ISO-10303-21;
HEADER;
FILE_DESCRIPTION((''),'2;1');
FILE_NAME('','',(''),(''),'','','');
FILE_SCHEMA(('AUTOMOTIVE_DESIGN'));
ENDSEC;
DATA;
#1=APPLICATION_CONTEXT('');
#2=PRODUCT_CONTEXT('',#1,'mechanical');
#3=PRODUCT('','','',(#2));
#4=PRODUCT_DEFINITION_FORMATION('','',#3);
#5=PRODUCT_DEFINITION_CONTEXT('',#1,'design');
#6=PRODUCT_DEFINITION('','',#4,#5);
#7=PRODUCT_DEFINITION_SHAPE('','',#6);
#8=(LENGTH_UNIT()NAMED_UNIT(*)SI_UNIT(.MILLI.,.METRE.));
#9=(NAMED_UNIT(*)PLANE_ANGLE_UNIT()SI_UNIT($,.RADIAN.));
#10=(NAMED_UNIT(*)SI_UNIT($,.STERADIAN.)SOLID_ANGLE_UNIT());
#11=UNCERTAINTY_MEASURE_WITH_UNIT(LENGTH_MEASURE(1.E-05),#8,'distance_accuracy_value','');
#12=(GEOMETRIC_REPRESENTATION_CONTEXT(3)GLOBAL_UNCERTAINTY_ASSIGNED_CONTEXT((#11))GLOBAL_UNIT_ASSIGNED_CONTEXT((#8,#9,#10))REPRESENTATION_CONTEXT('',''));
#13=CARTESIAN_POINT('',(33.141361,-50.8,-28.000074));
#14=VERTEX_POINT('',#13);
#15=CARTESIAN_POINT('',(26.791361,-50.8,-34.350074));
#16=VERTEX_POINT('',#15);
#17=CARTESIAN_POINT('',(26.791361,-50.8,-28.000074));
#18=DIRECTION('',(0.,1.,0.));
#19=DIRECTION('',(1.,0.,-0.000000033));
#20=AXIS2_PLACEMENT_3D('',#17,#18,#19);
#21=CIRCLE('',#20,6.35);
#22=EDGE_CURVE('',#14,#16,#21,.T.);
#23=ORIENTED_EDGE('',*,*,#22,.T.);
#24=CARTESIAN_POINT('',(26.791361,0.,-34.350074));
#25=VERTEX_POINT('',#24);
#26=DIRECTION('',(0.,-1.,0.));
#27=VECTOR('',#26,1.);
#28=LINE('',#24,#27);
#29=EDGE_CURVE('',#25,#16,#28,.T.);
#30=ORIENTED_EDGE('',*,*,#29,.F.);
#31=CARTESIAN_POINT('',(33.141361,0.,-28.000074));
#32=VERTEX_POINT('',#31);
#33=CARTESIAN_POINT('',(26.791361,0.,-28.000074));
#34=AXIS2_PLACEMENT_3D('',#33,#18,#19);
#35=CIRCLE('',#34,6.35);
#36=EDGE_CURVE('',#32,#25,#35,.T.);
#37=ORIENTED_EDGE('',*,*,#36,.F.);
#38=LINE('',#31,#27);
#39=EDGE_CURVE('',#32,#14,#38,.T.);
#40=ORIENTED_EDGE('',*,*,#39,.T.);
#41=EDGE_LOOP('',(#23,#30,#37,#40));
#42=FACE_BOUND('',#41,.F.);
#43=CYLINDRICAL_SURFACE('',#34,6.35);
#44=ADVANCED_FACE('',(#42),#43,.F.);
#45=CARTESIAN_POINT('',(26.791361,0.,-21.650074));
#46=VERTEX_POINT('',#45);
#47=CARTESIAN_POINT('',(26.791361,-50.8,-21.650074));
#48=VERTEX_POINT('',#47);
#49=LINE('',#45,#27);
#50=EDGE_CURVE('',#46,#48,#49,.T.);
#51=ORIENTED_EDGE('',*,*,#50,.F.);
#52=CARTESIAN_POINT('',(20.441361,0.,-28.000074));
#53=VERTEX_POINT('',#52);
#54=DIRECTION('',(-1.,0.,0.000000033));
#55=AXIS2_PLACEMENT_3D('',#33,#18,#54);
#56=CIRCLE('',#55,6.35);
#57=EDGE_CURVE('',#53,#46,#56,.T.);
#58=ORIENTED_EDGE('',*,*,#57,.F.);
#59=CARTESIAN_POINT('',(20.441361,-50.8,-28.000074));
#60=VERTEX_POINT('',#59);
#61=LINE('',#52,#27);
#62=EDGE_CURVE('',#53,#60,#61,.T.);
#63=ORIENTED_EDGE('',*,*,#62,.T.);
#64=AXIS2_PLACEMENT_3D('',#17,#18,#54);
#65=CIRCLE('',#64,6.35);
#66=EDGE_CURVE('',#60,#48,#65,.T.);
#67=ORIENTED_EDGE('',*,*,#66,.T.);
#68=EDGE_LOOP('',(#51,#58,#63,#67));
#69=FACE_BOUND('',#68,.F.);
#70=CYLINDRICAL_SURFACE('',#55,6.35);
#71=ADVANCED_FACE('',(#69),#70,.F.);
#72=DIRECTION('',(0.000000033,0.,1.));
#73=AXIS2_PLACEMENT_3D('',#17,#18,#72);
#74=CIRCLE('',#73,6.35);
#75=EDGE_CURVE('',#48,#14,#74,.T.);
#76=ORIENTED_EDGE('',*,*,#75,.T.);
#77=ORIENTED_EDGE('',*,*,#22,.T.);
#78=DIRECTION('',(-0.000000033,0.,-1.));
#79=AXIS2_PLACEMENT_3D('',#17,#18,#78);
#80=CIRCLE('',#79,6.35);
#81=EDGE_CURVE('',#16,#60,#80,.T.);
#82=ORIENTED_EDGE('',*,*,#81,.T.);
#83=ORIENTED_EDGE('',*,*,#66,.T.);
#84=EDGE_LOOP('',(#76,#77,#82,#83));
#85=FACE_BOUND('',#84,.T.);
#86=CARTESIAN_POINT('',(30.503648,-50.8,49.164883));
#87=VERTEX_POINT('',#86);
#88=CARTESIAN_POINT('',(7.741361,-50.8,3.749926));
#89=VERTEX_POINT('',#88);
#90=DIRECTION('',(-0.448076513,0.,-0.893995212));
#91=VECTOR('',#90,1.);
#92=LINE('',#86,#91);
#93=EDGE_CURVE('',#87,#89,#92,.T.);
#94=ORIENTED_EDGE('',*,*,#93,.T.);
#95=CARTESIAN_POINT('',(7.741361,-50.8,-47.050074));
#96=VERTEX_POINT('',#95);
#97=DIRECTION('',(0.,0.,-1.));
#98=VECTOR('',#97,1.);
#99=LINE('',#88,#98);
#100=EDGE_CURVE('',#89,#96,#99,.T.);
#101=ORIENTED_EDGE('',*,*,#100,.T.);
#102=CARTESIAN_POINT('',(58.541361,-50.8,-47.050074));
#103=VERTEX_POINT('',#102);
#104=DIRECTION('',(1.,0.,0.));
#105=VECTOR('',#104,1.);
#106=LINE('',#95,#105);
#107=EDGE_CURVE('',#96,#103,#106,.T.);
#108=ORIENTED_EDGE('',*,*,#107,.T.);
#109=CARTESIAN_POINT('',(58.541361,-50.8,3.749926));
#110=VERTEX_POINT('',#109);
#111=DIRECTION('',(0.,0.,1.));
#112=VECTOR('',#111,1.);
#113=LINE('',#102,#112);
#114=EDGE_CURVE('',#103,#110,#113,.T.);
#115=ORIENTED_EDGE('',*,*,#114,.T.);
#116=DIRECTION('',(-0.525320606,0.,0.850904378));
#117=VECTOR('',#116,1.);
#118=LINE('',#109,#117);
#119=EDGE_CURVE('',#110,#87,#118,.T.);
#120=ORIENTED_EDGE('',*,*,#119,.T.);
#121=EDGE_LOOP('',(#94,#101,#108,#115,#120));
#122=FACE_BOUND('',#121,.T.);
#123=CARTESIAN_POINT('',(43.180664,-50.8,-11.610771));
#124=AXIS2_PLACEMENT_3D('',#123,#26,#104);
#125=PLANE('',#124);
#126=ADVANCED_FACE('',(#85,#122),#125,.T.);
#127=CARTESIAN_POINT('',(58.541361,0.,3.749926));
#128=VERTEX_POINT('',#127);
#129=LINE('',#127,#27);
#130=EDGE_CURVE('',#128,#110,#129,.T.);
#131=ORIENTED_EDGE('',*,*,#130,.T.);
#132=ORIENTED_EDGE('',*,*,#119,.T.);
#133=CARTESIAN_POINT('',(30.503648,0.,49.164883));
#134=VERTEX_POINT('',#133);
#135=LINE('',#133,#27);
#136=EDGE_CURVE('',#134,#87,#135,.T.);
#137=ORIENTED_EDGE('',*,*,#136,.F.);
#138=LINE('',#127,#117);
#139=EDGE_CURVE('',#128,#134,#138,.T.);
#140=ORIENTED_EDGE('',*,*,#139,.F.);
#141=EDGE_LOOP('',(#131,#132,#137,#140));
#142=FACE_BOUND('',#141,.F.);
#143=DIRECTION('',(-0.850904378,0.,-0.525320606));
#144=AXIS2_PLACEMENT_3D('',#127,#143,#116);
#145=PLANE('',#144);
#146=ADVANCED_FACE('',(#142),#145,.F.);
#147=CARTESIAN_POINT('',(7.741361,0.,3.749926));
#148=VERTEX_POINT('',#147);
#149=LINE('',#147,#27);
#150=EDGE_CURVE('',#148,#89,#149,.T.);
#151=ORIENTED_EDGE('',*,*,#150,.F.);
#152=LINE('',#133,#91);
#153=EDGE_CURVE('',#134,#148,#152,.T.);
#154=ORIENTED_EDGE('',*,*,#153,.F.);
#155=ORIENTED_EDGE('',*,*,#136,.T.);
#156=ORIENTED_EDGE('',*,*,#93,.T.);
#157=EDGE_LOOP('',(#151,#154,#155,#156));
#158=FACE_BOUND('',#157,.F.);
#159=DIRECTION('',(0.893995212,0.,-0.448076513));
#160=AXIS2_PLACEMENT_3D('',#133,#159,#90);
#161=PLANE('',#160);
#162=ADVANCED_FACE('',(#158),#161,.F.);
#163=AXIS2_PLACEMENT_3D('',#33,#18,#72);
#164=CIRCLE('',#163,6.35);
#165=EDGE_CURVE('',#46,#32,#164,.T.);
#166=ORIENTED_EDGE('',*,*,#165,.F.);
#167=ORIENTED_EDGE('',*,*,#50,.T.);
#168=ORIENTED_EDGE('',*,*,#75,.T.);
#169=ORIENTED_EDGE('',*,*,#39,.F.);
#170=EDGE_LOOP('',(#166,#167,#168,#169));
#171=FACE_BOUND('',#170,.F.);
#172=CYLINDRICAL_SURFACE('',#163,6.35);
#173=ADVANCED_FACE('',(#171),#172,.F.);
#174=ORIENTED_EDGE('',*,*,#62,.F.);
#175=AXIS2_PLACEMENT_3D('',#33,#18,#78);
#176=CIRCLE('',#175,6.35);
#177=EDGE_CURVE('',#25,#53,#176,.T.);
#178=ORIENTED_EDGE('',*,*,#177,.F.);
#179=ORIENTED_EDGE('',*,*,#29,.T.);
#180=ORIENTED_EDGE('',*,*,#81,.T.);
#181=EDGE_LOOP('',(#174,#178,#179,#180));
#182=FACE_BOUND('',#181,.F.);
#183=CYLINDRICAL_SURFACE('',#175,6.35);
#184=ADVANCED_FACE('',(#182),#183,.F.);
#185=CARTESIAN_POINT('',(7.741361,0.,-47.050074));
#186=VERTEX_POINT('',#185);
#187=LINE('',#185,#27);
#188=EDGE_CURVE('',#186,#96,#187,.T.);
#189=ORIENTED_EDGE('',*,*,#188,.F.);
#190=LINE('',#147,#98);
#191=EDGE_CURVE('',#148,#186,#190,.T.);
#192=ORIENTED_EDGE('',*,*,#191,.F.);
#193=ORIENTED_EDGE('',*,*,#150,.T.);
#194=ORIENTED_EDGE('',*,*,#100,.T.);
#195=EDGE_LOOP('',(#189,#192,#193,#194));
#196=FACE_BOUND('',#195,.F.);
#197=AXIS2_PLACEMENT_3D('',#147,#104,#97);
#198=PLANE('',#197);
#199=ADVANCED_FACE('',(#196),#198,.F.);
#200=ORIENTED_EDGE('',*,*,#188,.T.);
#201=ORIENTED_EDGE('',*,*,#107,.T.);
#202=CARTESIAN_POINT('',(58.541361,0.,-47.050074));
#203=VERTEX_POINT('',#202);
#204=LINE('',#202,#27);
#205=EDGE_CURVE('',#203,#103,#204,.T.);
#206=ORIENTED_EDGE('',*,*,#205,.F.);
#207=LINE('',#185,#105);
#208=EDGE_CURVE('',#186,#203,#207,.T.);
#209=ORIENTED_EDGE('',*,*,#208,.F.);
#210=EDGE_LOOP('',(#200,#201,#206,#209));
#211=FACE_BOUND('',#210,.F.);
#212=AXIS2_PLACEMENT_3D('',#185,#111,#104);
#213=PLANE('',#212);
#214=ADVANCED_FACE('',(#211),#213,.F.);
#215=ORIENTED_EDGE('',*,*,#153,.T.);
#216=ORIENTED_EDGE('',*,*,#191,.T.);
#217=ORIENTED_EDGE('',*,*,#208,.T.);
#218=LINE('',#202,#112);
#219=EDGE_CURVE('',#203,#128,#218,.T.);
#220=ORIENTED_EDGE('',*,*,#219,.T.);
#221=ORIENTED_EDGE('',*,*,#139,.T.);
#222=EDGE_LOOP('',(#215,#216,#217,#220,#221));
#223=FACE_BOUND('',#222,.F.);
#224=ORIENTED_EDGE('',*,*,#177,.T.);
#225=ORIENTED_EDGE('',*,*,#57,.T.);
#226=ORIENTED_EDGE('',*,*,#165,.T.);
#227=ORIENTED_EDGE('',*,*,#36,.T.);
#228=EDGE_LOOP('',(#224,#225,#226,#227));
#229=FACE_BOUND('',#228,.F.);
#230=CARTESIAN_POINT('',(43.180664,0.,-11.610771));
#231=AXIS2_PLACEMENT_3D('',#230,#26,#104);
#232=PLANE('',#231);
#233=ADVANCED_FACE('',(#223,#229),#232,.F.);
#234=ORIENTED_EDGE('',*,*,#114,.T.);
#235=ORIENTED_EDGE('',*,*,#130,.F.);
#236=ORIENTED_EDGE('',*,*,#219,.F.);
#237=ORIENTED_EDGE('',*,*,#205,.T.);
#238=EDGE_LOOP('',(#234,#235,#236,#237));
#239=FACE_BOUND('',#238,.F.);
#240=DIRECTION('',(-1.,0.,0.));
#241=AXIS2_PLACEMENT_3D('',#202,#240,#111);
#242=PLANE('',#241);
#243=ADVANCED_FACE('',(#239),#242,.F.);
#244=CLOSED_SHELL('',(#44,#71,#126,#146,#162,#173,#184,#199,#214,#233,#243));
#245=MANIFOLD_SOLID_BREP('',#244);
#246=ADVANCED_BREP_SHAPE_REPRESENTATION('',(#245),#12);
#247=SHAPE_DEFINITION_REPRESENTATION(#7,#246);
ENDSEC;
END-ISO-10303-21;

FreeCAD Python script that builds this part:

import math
import FreeCAD as App
import Part
import Sketcher

V = App.Vector
Q = App.Units.Quantity

doc = App.newDocument("Part")
body = doc.addObject("PartDesign::Body", "Body")

sketch1 = body.newObject("Sketcher::SketchObject", "Sketch")
sketch1.AttachmentSupport = (doc.getObject("XZ_Plane"), [""])
sketch1.MapMode = "FlatFace"
sketch1.addGeometry([
    Part.LineSegment(V(8, 4, 0), V(8, -47, 0)),
    Part.LineSegment(V(8, -47, 0), V(59, -47, 0)),
    Part.LineSegment(V(59, -47, 0), V(59, 4, 0)),
    Part.LineSegment(V(59, 4, 0), V(31, 49, 0)),
    Part.LineSegment(V(31, 49, 0), V(8, 4, 0)),
    Part.ArcOfCircle(Part.Circle(V(27, -28, 0), V(0, 0, 1), 6), math.radians(-180), math.radians(-90)),
    Part.ArcOfCircle(Part.Circle(V(27, -28, 0), V(0, 0, 1), 6), math.radians(90), math.radians(180)),
    Part.ArcOfCircle(Part.Circle(V(27, -28, 0), V(0, 0, 1), 6), math.radians(0), math.radians(90)),
    Part.ArcOfCircle(Part.Circle(V(27, -28, 0), V(0, 0, 1), 6), math.radians(-90), math.radians(0)),
], False)
sketch1.addConstraint([
    Sketcher.Constraint("Coincident", 0, 2, 1, 1),
    Sketcher.Constraint("Coincident", 1, 2, 2, 1),
    Sketcher.Constraint("Coincident", 2, 2, 3, 1),
    Sketcher.Constraint("Coincident", 3, 2, 4, 1),
    Sketcher.Constraint("Coincident", 4, 2, 0, 1),
    Sketcher.Constraint("Tangent", 5, 1, 6, 2),
    Sketcher.Constraint("Tangent", 6, 1, 7, 2),
    Sketcher.Constraint("Tangent", 7, 1, 8, 2),
    Sketcher.Constraint("Tangent", 8, 1, 5, 2),
    Sketcher.Constraint("Vertical", 0),
    Sketcher.Constraint("Horizontal", 1),
    Sketcher.Constraint("Vertical", 2),
    Sketcher.Constraint("Equal", 5, 6),
    Sketcher.Constraint("Horizontal", 2, 2, 4, 2),
    Sketcher.Constraint("Horizontal", 8, 3, 5, 1),
    Sketcher.Constraint("Horizontal", 5, 1, 7, 1),
    Sketcher.Constraint("Vertical", 8, 3, 6, 1),
    Sketcher.Constraint("Vertical", 6, 1, 8, 1),
    Sketcher.Constraint("Equal", 1, 0),
    Sketcher.Constraint("DistanceX", 1, 1, 1, 2, Q("2 in")),
    Sketcher.Constraint("Radius", 5, Q("0.25 in")),
    Sketcher.Constraint("Distance", 4, Q("2 in")),
    Sketcher.Constraint("DistanceX", 0, 2, 5, 1, Q("0.5 in")),
    Sketcher.Constraint("DistanceY", 0, 2, 7, 3, Q("0.75 in")),
    Sketcher.Constraint("DistanceX", -1, 1, 5, 3, 26.791361),
    Sketcher.Constraint("Distance", 3, 53.372574),
    Sketcher.Constraint("DistanceY", 5, 3, -1, 1, 28.000074),
])
pad1 = body.newObject("PartDesign::Pad", "Pad")
pad1.Profile = sketch1
pad1.Length = Q("2 in")

doc.recompute()
